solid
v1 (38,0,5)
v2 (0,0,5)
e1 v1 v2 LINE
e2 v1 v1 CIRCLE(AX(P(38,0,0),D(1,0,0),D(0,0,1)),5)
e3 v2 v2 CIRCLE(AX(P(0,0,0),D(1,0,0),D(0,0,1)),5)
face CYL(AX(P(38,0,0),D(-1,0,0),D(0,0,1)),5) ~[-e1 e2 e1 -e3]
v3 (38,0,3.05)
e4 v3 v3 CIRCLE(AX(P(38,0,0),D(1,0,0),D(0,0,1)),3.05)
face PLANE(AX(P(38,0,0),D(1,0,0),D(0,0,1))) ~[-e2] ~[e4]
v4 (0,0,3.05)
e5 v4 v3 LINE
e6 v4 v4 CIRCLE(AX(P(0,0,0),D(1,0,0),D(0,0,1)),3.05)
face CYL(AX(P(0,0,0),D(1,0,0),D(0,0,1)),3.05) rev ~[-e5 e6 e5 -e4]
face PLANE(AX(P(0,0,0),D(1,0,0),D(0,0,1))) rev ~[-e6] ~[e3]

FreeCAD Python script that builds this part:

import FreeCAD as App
import Part
import Sketcher
from FreeCAD import Vector

doc = App.newDocument("Part")
body = doc.addObject("PartDesign::Body", "Body")

# Sketch on XZ plane
sketch1 = body.newObject("Sketcher::SketchObject", "Sketch")
sketch1.AttachmentSupport = (doc.getObject("XZ_Plane"), [""])
sketch1.MapMode = "FlatFace"
sketch1.addGeometry(Part.LineSegment(Vector(0, 5, 0), Vector(0, 3, 0)), False)
sketch1.addGeometry(Part.LineSegment(Vector(0, 3, 0), Vector(38, 3, 0)), False)
sketch1.addGeometry(Part.LineSegment(Vector(38, 3, 0), Vector(38, 5, 0)), False)
sketch1.addGeometry(Part.LineSegment(Vector(38, 5, 0), Vector(0, 5, 0)), False)
sketch1.addConstraint(Sketcher.Constraint("Coincident", 0, 2, 1, 1))
sketch1.addConstraint(Sketcher.Constraint("Coincident", 1, 2, 2, 1))
sketch1.addConstraint(Sketcher.Constraint("Coincident", 2, 2, 3, 1))
sketch1.addConstraint(Sketcher.Constraint("Coincident", 3, 2, 0, 1))
sketch1.addConstraint(Sketcher.Constraint("Vertical", 0))
sketch1.addConstraint(Sketcher.Constraint("Horizontal", 1))
sketch1.addConstraint(Sketcher.Constraint("Vertical", 2))
sketch1.addConstraint(Sketcher.Constraint("Horizontal", 3))
sketch1.addConstraint(Sketcher.Constraint("PointOnObject", 0, 2, -2))
sketch1.addConstraint(Sketcher.Constraint("DistanceX", 1, 1, 1, 2, 38.0))
sketch1.addConstraint(Sketcher.Constraint("DistanceY", -1, 1, 2, 2, 5.0))
sketch1.addConstraint(Sketcher.Constraint("DistanceY", 0, 2, 0, 1, 1.95))
revolution = body.newObject("PartDesign::Revolution", "Revolution")
revolution.Profile = sketch1
revolution.ReferenceAxis = (sketch1, ["H_Axis"])
revolution.Angle = 360

doc.recompute()
